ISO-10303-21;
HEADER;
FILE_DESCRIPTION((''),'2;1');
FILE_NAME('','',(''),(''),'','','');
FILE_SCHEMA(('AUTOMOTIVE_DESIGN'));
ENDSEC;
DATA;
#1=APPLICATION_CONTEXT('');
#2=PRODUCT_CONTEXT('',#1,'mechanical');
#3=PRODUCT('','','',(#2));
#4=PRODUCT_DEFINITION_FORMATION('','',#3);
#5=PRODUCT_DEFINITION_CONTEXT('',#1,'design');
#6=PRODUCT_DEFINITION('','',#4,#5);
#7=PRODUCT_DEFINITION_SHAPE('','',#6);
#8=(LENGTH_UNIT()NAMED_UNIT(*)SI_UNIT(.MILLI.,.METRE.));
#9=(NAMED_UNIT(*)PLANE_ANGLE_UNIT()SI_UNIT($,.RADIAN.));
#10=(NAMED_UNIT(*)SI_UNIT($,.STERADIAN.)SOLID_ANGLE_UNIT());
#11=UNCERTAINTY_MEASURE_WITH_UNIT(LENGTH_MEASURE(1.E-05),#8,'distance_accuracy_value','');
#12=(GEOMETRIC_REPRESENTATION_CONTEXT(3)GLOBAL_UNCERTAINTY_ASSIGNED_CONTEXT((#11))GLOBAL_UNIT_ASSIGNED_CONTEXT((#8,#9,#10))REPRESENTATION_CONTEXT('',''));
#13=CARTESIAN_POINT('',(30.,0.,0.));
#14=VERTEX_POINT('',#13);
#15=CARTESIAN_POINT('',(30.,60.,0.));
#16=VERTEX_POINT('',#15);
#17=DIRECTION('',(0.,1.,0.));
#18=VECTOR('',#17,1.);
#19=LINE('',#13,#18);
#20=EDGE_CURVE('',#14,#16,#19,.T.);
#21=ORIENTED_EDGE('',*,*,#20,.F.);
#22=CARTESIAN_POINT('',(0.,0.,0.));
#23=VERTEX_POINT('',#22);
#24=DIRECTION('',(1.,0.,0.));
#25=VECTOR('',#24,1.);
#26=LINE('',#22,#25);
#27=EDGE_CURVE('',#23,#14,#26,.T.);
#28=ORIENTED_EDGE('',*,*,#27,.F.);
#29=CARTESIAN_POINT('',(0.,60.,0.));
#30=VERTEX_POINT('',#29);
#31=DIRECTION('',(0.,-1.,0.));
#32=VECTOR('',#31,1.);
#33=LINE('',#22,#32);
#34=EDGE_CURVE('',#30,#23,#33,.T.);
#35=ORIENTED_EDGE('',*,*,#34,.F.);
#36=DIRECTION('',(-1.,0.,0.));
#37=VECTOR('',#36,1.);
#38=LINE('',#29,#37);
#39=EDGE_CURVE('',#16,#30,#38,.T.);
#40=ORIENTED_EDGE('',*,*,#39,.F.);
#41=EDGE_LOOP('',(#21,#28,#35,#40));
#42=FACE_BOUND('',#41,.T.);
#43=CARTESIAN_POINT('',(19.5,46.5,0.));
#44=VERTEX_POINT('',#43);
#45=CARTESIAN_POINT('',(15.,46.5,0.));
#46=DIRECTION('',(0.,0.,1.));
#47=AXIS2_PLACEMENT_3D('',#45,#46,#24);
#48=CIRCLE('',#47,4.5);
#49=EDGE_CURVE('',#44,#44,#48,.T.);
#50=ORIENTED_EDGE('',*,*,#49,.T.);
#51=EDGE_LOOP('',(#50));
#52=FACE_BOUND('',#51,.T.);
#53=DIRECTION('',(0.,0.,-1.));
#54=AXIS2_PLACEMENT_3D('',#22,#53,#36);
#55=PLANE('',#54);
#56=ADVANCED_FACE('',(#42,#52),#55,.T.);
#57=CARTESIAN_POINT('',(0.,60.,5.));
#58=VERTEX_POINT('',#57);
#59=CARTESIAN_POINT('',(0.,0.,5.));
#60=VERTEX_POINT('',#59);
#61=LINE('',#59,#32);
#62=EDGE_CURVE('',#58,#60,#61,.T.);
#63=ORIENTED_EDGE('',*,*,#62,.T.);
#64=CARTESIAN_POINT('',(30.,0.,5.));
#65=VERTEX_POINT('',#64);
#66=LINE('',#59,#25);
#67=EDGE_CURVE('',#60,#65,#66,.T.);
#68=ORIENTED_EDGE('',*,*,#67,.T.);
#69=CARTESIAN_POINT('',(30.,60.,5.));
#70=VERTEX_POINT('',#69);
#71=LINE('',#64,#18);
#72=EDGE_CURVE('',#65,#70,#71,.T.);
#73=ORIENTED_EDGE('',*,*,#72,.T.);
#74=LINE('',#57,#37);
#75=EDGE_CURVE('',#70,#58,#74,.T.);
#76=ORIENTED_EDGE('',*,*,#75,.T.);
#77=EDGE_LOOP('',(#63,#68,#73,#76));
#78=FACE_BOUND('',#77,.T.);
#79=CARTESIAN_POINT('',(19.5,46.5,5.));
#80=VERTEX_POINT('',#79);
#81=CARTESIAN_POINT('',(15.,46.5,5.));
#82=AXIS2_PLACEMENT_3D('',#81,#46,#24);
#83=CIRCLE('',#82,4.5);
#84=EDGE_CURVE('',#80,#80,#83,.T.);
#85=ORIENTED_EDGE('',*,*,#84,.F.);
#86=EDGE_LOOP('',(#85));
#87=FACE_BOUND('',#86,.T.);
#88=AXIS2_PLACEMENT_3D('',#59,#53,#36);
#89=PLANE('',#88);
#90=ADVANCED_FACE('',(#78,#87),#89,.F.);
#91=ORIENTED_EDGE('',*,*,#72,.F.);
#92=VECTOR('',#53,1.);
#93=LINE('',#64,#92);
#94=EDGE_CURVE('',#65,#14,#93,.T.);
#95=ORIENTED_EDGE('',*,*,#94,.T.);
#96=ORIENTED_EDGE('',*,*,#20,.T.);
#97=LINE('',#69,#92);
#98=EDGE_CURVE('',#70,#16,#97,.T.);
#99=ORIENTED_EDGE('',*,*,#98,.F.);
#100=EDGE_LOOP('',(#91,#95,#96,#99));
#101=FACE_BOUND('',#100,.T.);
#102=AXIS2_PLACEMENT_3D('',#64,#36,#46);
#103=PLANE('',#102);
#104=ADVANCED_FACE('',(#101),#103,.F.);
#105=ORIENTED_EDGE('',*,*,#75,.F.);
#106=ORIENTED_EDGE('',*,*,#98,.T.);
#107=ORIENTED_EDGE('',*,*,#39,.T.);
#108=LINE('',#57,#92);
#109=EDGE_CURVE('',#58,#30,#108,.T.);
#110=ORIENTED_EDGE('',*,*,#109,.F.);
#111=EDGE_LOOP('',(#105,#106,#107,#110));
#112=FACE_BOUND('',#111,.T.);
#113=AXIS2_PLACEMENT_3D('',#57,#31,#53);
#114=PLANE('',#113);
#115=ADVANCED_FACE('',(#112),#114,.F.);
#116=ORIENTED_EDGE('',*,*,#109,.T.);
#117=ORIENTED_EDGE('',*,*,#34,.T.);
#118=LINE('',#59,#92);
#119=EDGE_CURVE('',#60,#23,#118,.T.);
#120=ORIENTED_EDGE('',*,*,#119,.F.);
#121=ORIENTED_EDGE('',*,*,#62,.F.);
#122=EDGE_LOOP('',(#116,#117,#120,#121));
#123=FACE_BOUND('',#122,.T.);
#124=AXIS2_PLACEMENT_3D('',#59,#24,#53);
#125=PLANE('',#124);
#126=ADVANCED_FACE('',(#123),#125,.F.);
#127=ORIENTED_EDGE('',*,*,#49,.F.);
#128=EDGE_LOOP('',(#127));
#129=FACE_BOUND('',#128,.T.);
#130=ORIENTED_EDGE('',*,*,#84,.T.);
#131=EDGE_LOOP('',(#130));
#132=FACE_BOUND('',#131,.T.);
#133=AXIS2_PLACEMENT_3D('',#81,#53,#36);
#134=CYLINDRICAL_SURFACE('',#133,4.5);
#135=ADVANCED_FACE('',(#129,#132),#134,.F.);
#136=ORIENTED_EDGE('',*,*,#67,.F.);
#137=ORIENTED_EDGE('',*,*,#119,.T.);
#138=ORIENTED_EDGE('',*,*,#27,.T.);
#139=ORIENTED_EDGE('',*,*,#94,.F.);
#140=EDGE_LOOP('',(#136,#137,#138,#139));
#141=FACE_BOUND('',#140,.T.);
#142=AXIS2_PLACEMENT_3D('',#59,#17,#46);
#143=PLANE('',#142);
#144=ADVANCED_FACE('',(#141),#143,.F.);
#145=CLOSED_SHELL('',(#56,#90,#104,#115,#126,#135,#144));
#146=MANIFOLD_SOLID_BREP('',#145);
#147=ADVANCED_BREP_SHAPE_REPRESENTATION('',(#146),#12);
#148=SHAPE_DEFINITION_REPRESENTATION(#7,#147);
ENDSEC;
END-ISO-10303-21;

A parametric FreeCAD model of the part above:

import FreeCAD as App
import Part
import Sketcher

V = App.Vector


def add_polygon(sketch, points):
    """Adds a closed chain of lines whose ends are joined by coincident constraints."""
    first, n = sketch.GeometryCount, len(points)
    for a, b in zip(points, points[1:] + points[:1]):
        sketch.addGeometry(Part.LineSegment(App.Vector(*a, 0), App.Vector(*b, 0)), False)
    for i in range(n):
        sketch.addConstraint(Sketcher.Constraint("Coincident", first + i, 2, first + (i + 1) % n, 1))

doc = App.newDocument("Part")
body = doc.addObject("PartDesign::Body", "Body")

sketch1 = doc.addObject("Sketcher::SketchObject", "Sketch")
body.addObject(sketch1)
sketch1.AttachmentSupport = (doc.XY_Plane, [""])
sketch1.MapMode = "FlatFace"
add_polygon(sketch1, [(0, 60), (0, 0), (30, 0), (30, 60)])
sketch1.addGeometry(Part.Circle(V(15, 46.5, 0), V(0, 0, 1), 4.5), False)
sketch1.addConstraint(Sketcher.Constraint("Vertical", 0))
sketch1.addConstraint(Sketcher.Constraint("Horizontal", 1))
sketch1.addConstraint(Sketcher.Constraint("Vertical", 2))
sketch1.addConstraint(Sketcher.Constraint("Horizontal", 3))
sketch1.addConstraint(Sketcher.Constraint("Coincident", 0, 2, -1, 1))
sketch1.addConstraint(Sketcher.Constraint("Diameter", 4, 9.0))
sketch1.addConstraint(Sketcher.Constraint("DistanceX", 1, 1, 1, 2, 30.0))
sketch1.addConstraint(Sketcher.Constraint("DistanceY", 0, 2, 0, 1, 60.0))
sketch1.addConstraint(Sketcher.Constraint("DistanceX", -1, 1, 4, 3, 15.0))
sketch1.addConstraint(Sketcher.Constraint("DistanceY", -1, 1, 4, 3, 46.5))
pad1 = doc.addObject("PartDesign::Pad", "Pad")
body.addObject(pad1)
pad1.Profile = sketch1
pad1.Length = 5

doc.recompute()
